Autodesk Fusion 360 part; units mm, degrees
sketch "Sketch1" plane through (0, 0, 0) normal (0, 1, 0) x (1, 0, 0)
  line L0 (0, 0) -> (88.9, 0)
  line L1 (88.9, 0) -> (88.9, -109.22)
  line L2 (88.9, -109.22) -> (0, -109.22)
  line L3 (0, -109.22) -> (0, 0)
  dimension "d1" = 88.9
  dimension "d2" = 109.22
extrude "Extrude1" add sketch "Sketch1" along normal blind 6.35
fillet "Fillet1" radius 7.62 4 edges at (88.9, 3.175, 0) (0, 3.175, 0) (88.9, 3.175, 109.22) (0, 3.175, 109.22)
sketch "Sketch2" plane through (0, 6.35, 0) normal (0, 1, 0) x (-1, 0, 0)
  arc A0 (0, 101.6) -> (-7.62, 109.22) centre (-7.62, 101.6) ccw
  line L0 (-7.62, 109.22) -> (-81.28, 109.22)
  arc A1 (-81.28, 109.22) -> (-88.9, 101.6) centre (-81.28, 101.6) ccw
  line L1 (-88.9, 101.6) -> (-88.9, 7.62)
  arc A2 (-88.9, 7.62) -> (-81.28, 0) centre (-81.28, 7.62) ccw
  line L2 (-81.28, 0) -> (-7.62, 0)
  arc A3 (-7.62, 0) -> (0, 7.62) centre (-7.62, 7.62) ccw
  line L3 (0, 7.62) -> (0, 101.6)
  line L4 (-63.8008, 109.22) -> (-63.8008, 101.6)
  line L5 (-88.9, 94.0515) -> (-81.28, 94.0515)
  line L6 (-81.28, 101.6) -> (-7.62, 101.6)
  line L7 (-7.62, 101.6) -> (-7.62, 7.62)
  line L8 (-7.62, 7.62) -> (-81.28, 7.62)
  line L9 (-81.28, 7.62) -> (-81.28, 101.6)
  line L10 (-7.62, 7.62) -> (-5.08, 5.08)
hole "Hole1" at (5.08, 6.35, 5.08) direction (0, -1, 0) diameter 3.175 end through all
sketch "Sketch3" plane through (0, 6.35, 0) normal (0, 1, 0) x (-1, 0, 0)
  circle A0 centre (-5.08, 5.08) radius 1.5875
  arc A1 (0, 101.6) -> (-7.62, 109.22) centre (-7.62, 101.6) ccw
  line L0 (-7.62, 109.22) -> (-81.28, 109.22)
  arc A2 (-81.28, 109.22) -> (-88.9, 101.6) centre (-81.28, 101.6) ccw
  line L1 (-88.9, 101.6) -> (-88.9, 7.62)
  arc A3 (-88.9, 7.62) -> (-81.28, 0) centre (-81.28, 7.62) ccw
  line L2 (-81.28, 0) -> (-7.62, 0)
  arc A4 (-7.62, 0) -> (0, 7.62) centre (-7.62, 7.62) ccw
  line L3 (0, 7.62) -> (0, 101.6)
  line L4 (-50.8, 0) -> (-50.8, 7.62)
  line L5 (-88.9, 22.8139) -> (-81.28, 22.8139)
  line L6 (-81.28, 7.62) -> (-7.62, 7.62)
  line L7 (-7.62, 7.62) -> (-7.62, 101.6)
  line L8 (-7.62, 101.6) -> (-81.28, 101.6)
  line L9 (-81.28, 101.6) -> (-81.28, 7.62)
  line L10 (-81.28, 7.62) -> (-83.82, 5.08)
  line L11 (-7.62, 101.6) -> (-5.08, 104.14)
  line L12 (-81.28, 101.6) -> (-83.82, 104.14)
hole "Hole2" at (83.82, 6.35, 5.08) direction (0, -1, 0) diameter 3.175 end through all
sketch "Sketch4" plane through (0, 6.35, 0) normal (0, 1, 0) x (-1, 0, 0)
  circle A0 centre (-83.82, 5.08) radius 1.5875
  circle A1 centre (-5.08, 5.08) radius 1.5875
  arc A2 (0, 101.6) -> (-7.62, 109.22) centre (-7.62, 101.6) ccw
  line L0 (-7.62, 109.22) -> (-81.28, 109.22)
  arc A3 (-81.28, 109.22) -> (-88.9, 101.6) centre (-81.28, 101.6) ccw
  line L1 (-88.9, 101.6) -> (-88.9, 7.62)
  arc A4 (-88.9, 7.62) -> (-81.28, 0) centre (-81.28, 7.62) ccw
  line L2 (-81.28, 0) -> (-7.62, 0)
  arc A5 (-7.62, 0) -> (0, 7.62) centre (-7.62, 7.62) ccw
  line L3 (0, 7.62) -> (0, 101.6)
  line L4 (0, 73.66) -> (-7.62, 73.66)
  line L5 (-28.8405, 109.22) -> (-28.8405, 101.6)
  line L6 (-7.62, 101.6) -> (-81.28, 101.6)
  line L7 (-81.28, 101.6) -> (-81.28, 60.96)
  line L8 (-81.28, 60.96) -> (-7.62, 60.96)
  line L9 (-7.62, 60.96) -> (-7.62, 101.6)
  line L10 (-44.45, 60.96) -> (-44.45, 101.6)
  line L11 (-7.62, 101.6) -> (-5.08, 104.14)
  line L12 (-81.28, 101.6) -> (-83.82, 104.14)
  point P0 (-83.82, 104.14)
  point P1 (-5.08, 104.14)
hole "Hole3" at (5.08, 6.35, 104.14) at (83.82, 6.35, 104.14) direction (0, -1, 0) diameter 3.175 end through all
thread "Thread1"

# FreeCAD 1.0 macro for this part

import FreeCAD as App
import Part
import Sketcher
Q = App.Units.Quantity


def edges_at(feature, points):
    """Names of the edges that pass closest to the given points."""
    edges = feature.Shape.Edges
    near = lambda p: min(range(len(edges)), key=lambda i: edges[i].distToShape(Part.Vertex(*p))[0])
    return sorted({f"Edge{near(p) + 1}" for p in points})


def add_polygon(sketch, points):
    """Adds a closed chain of lines whose ends are joined by coincident constraints."""
    first, n = sketch.GeometryCount, len(points)
    for a, b in zip(points, points[1:] + points[:1]):
        sketch.addGeometry(Part.LineSegment(App.Vector(*a, 0), App.Vector(*b, 0)), False)
    for i in range(n):
        sketch.addConstraint(Sketcher.Constraint("Coincident", first + i, 2, first + (i + 1) % n, 1))

doc = App.newDocument("Part")
body = doc.addObject("PartDesign::Body", "Body")

sketch1 = doc.addObject("Sketcher::SketchObject", "Sketch")
body.addObject(sketch1)
sketch1.AttachmentSupport = (doc.XZ_Plane, [""])
sketch1.MapMode = "FlatFace"
add_polygon(sketch1, [(89, 0), (0, 0), (0, 109), (89, 109)])
sketch1.addConstraint(Sketcher.Constraint("Horizontal", 0))
sketch1.addConstraint(Sketcher.Constraint("Vertical", 1))
sketch1.addConstraint(Sketcher.Constraint("Horizontal", 2))
sketch1.addConstraint(Sketcher.Constraint("Vertical", 3))
sketch1.addConstraint(Sketcher.Constraint("Coincident", 0, 2, -1, 1))
sketch1.addConstraint(Sketcher.Constraint("DistanceX", 0, 2, 0, 1, Q("3.5 in")))
sketch1.addConstraint(Sketcher.Constraint("DistanceY", 1, 1, 1, 2, Q("4.3 in")))
pad1 = doc.addObject("PartDesign::Pad", "Pad")
body.addObject(pad1)
pad1.Profile = sketch1
pad1.Length = Q("0.25 in")
pad1.Reversed = True
doc.recompute()

fillet = doc.addObject("PartDesign::Fillet", "Fillet")
body.addObject(fillet)
fillet.Base = (pad1, edges_at(pad1, [
    (88.9, 3.175, 0),
    (0, 3.175, 0),
    (88.9, 3.175, 109.22),
    (0, 3.175, 109.22),
]))
fillet.Radius = Q("0.3 in")

sketch2 = doc.addObject("Sketcher::SketchObject", "Sketch001")
body.addObject(sketch2)
sketch2.AttachmentSupport = (doc.XZ_Plane, [""])
sketch2.MapMode = "FlatFace"
sketch2.AttachmentOffset = App.Placement(App.Vector(0, 0, -0.25 * 25.4), App.Rotation())
sketch2.addGeometry(Part.Circle(App.Vector(5.1, 5.1, 0), App.Vector(0, 0, 1), 1.6), False)
sketch2.addConstraint(Sketcher.Constraint("Diameter", 0, Q("0.125 in")))
sketch2.addConstraint(Sketcher.Constraint("DistanceX", -1, 1, 0, 3, Q("0.2 in")))
sketch2.addConstraint(Sketcher.Constraint("DistanceY", -1, 1, 0, 3, Q("0.2 in")))
doc.recompute()
hole = doc.addObject("PartDesign::Hole", "Hole")
body.addObject(hole)
hole.Profile = sketch2
hole.ThreadType = "None"
hole.Diameter = Q("0.125 in")
hole.DepthType = "ThroughAll"
hole.Reversed = True

sketch3 = doc.addObject("Sketcher::SketchObject", "Sketch002")
body.addObject(sketch3)
sketch3.AttachmentSupport = (doc.XZ_Plane, [""])
sketch3.MapMode = "FlatFace"
sketch3.AttachmentOffset = App.Placement(App.Vector(0, 0, -0.25 * 25.4), App.Rotation())
sketch3.addGeometry(Part.Circle(App.Vector(83.8, 5.1, 0), App.Vector(0, 0, 1), 1.6), False)
sketch3.addConstraint(Sketcher.Constraint("Diameter", 0, Q("0.125 in")))
sketch3.addConstraint(Sketcher.Constraint("DistanceX", -1, 1, 0, 3, Q("3.3 in")))
sketch3.addConstraint(Sketcher.Constraint("DistanceY", -1, 1, 0, 3, Q("0.2 in")))
doc.recompute()
hole2 = doc.addObject("PartDesign::Hole", "Hole001")
body.addObject(hole2)
hole2.Profile = sketch3
hole2.ThreadType = "None"
hole2.Diameter = Q("0.125 in")
hole2.DepthType = "ThroughAll"
hole2.Reversed = True

sketch4 = doc.addObject("Sketcher::SketchObject", "Sketch003")
body.addObject(sketch4)
sketch4.AttachmentSupport = (doc.XZ_Plane, [""])
sketch4.MapMode = "FlatFace"
sketch4.AttachmentOffset = App.Placement(App.Vector(0, 0, -0.25 * 25.4), App.Rotation())
sketch4.addGeometry(Part.Circle(App.Vector(5.1, 104.1, 0), App.Vector(0, 0, 1), 1.6), False)
sketch4.addGeometry(Part.Circle(App.Vector(83.8, 104.1, 0), App.Vector(0, 0, 1), 1.6), False)
sketch4.addConstraint(Sketcher.Constraint("Equal", 0, 1))
sketch4.addConstraint(Sketcher.Constraint("Horizontal", 0, 3, 1, 3))
sketch4.addConstraint(Sketcher.Constraint("Diameter", 0, Q("0.125 in")))
sketch4.addConstraint(Sketcher.Constraint("DistanceX", -1, 1, 0, 3, Q("0.2 in")))
sketch4.addConstraint(Sketcher.Constraint("DistanceY", -1, 1, 0, 3, Q("4.1 in")))
sketch4.addConstraint(Sketcher.Constraint("DistanceX", -1, 1, 1, 3, Q("3.3 in")))
doc.recompute()
hole3 = doc.addObject("PartDesign::Hole", "Hole002")
body.addObject(hole3)
hole3.Profile = sketch4
hole3.ThreadType = "None"
hole3.Diameter = Q("0.125 in")
hole3.DepthType = "ThroughAll"
hole3.Reversed = True

doc.recompute()
